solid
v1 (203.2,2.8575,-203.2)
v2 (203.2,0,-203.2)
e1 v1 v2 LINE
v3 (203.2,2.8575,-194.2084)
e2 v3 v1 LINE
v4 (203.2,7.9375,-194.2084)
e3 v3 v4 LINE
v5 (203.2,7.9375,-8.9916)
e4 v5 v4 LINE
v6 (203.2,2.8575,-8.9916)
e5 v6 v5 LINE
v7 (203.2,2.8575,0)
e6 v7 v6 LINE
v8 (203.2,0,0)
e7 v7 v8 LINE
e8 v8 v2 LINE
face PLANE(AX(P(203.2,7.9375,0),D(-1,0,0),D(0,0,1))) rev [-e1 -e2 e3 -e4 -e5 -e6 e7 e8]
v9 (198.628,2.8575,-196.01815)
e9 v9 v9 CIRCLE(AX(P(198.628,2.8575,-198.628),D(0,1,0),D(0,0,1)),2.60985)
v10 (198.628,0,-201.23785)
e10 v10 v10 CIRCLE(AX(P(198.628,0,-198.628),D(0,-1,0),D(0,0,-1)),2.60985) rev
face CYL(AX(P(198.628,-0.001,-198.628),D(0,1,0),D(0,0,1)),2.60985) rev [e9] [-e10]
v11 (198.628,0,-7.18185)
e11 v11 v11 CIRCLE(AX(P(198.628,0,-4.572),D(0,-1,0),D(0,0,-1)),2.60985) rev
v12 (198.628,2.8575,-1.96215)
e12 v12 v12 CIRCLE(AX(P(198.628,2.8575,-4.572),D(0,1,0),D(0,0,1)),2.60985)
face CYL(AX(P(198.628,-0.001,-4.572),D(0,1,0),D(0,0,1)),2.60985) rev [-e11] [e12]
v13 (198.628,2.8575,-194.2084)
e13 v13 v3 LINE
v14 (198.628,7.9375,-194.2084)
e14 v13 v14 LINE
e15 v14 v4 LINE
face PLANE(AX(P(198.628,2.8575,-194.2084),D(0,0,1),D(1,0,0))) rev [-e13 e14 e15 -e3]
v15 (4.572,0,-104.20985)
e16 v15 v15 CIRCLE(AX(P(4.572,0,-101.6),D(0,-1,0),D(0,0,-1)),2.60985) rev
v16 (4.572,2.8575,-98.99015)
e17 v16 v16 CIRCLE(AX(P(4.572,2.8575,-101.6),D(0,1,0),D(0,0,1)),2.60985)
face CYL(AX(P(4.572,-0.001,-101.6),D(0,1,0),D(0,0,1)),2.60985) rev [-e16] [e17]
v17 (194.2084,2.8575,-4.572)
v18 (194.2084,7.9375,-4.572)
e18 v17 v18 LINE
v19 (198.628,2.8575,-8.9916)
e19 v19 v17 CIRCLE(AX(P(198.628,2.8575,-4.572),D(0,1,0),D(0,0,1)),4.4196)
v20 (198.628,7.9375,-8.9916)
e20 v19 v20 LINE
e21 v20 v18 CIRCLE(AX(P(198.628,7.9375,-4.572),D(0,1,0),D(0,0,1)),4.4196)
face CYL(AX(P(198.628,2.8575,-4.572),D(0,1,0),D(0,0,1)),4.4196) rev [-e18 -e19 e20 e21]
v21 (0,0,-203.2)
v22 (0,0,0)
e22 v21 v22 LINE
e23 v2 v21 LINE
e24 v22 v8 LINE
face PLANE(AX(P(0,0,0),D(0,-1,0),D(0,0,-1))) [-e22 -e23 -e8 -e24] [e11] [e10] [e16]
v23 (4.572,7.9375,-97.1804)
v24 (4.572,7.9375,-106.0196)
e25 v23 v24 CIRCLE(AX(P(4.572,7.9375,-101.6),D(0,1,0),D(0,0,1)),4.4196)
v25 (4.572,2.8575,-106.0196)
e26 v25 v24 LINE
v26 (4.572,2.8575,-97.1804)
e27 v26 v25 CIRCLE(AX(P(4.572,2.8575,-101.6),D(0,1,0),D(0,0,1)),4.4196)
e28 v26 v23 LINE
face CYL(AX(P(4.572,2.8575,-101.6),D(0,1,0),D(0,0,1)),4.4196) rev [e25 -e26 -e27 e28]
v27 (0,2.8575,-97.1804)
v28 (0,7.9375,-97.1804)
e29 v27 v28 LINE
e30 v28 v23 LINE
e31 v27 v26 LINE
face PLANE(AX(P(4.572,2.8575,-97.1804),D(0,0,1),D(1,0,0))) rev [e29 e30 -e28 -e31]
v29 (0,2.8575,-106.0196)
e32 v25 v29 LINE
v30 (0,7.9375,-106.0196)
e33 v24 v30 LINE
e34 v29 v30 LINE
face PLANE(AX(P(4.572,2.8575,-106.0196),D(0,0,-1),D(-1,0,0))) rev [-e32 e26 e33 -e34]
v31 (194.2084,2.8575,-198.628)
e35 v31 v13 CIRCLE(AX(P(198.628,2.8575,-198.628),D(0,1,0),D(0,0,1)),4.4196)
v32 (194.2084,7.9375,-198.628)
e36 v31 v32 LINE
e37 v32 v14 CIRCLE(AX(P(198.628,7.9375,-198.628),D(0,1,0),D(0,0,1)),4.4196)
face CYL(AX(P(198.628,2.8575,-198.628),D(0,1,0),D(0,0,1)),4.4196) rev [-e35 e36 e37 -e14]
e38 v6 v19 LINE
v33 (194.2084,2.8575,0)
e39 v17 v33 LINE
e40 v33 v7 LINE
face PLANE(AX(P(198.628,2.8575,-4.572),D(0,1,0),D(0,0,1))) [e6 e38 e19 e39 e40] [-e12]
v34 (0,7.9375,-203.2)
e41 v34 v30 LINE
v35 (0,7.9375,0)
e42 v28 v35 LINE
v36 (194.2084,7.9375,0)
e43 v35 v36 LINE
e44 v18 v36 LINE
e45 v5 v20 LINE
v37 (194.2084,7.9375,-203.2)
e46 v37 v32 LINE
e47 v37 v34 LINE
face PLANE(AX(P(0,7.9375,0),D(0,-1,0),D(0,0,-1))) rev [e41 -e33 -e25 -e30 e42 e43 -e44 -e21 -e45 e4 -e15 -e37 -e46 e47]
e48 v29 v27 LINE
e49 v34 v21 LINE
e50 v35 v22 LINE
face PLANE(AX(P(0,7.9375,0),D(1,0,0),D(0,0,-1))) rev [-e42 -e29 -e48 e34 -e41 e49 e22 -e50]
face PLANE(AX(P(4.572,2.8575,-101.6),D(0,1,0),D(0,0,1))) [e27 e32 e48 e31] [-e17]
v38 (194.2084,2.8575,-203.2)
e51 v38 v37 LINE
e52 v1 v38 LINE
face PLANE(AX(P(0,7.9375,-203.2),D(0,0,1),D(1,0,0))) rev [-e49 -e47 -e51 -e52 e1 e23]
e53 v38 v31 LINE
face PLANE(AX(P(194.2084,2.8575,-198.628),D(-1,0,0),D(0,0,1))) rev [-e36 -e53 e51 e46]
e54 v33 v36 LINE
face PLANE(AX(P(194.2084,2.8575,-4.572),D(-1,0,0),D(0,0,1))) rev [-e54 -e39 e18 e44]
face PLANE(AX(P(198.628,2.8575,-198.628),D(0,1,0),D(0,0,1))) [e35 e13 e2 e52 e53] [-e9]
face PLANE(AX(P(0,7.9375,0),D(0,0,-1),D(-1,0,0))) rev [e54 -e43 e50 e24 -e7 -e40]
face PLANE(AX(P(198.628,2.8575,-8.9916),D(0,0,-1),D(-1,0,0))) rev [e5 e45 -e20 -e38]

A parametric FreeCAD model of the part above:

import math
import FreeCAD as App
import Part
import Sketcher
from FreeCAD import Vector
Q = App.Units.Quantity


def add_polygon(sketch, points):
    """Adds a closed chain of lines whose ends are joined by coincident constraints."""
    first, n = sketch.GeometryCount, len(points)
    for a, b in zip(points, points[1:] + points[:1]):
        sketch.addGeometry(Part.LineSegment(App.Vector(*a, 0), App.Vector(*b, 0)), False)
    for i in range(n):
        sketch.addConstraint(Sketcher.Constraint("Coincident", first + i, 2, first + (i + 1) % n, 1))

doc = App.newDocument("Part")
body = doc.addObject("PartDesign::Body", "Body")

sketch1 = doc.addObject("Sketcher::SketchObject", "Sketch")
body.addObject(sketch1)
sketch1.AttachmentSupport = (doc.XZ_Plane, [""])
sketch1.MapMode = "FlatFace"
add_polygon(sketch1, [(0, -203.2), (0, 0), (203.2, 0), (203.2, -203.2)])
sketch1.addConstraint(Sketcher.Constraint("Vertical", 0))
sketch1.addConstraint(Sketcher.Constraint("Horizontal", 1))
sketch1.addConstraint(Sketcher.Constraint("Vertical", 2))
sketch1.addConstraint(Sketcher.Constraint("Horizontal", 3))
sketch1.addConstraint(Sketcher.Constraint("Coincident", 0, 2, -1, 1))
sketch1.addConstraint(Sketcher.Constraint("Equal", 3, 0))
sketch1.addConstraint(Sketcher.Constraint("DistanceX", 1, 1, 1, 2, Q("8 in")))
pad1 = doc.addObject("PartDesign::Pad", "Pad")
body.addObject(pad1)
pad1.Profile = sketch1
pad1.Length = Q("0.3125 in")
pad1.Reversed = True

sketch2 = doc.addObject("Sketcher::SketchObject", "Sketch001")
body.addObject(sketch2)
sketch2.AttachmentSupport = (doc.XZ_Plane, [""])
sketch2.MapMode = "FlatFace"
sketch2.AttachmentOffset = App.Placement(Vector(0, 0, -0.3125 * 25.4), App.Rotation())
sketch2.addGeometry(Part.Circle(Vector(4.572, -101.6, 0), Vector(0, 0, 1), 2.60985), False)
sketch2.addConstraint(Sketcher.Constraint("DistanceY", 0, 3, -1, 1, Q("4 in")))
sketch2.addConstraint(Sketcher.Constraint("Diameter", 0, Q("0.2055 in")))
sketch2.addConstraint(Sketcher.Constraint("DistanceX", -1, 1, 0, 3, Q("0.18 in")))
pocket1 = doc.addObject("PartDesign::Pocket", "Pocket")
body.addObject(pocket1)
pocket1.Profile = sketch2
pocket1.Type = "UpToFirst"
pocket1.Reversed = True

sketch3 = doc.addObject("Sketcher::SketchObject", "Sketch002")
body.addObject(sketch3)
sketch3.AttachmentSupport = (doc.XZ_Plane, [""])
sketch3.MapMode = "FlatFace"
sketch3.AttachmentOffset = App.Placement(Vector(0, 0, -0.3125 * 25.4), App.Rotation())
sketch3.addGeometry(Part.Circle(Vector(198.628, -198.628, 0), Vector(0, 0, 1), 2.60985), False)
sketch3.addConstraint(Sketcher.Constraint("Diameter", 0, Q("0.2055 in")))
sketch3.addConstraint(Sketcher.Constraint("DistanceX", -1, 1, 0, 3, Q("7.82 in")))
sketch3.addConstraint(Sketcher.Constraint("DistanceY", 0, 3, -1, 1, Q("7.82 in")))
pocket2 = doc.addObject("PartDesign::Pocket", "Pocket001")
body.addObject(pocket2)
pocket2.Profile = sketch3
pocket2.Type = "UpToFirst"
pocket2.Reversed = True

sketch4 = doc.addObject("Sketcher::SketchObject", "Sketch003")
body.addObject(sketch4)
sketch4.AttachmentSupport = (doc.XZ_Plane, [""])
sketch4.MapMode = "FlatFace"
sketch4.AttachmentOffset = App.Placement(Vector(0, 0, -0.3125 * 25.4), App.Rotation())
sketch4.addGeometry(Part.Circle(Vector(198.628, -4.572, 0), Vector(0, 0, 1), 2.60985), False)
sketch4.addConstraint(Sketcher.Constraint("Diameter", 0, Q("0.2055 in")))
sketch4.addConstraint(Sketcher.Constraint("DistanceX", -1, 1, 0, 3, Q("7.82 in")))
sketch4.addConstraint(Sketcher.Constraint("DistanceY", 0, 3, -1, 1, Q("0.18 in")))
pocket3 = doc.addObject("PartDesign::Pocket", "Pocket002")
body.addObject(pocket3)
pocket3.Profile = sketch4
pocket3.Type = "UpToFirst"
pocket3.Reversed = True

sketch5 = doc.addObject("Sketcher::SketchObject", "Sketch004")
body.addObject(sketch5)
sketch5.AttachmentSupport = (doc.XZ_Plane, [""])
sketch5.MapMode = "FlatFace"
sketch5.AttachmentOffset = App.Placement(Vector(0, 0, -0.3125 * 25.4), App.Rotation())
sketch5.addGeometry(Part.LineSegment(Vector(4.572, -106.0196, 0), Vector(0, -106.0196, 0)), False)
sketch5.addGeometry(Part.LineSegment(Vector(0, -106.0196, 0), Vector(0, -97.1804, 0)), False)
sketch5.addGeometry(Part.LineSegment(Vector(0, -97.1804, 0), Vector(4.572, -97.1804, 0)), False)
sketch5.addGeometry(Part.ArcOfCircle(Part.Circle(Vector(4.572, -101.6, 0), Vector(0, 0, 1), 4.4196), math.radians(-90), math.radians(90)), False)
sketch5.addGeometry(Part.Circle(Vector(4.572, -101.6, 0), Vector(0, 0, 1), 2.60985), False)
sketch5.addGeometry(Part.LineSegment(Vector(194.2084, -203.2, 0), Vector(194.2084, -198.628, 0)), False)
sketch5.addGeometry(Part.ArcOfCircle(Part.Circle(Vector(198.628, -198.628, 0), Vector(0, 0, 1), 4.4196), math.radians(90), math.radians(180)), False)
sketch5.addGeometry(Part.LineSegment(Vector(198.628, -194.2084, 0), Vector(203.2, -194.2084, 0)), False)
sketch5.addGeometry(Part.LineSegment(Vector(203.2, -194.2084, 0), Vector(203.2, -203.2, 0)), False)
sketch5.addGeometry(Part.LineSegment(Vector(203.2, -203.2, 0), Vector(194.2084, -203.2, 0)), False)
sketch5.addGeometry(Part.Circle(Vector(198.628, -198.628, 0), Vector(0, 0, 1), 2.60985), False)
sketch5.addGeometry(Part.LineSegment(Vector(194.2084, -4.572, 0), Vector(194.2084, 0, 0)), False)
sketch5.addGeometry(Part.LineSegment(Vector(194.2084, 0, 0), Vector(203.2, 0, 0)), False)
sketch5.addGeometry(Part.LineSegment(Vector(203.2, 0, 0), Vector(203.2, -8.9916, 0)), False)
sketch5.addGeometry(Part.LineSegment(Vector(203.2, -8.9916, 0), Vector(198.628, -8.9916, 0)), False)
sketch5.addGeometry(Part.ArcOfCircle(Part.Circle(Vector(198.628, -4.572, 0), Vector(0, 0, 1), 4.4196), math.radians(180), math.radians(270)), False)
sketch5.addGeometry(Part.Circle(Vector(198.628, -4.572, 0), Vector(0, 0, 1), 2.60985), False)
sketch5.addConstraint(Sketcher.Constraint("Coincident", 0, 2, 1, 1))
sketch5.addConstraint(Sketcher.Constraint("Coincident", 1, 2, 2, 1))
sketch5.addConstraint(Sketcher.Constraint("Tangent", 2, 2, 3, 2))
sketch5.addConstraint(Sketcher.Constraint("Tangent", 3, 1, 0, 1))
sketch5.addConstraint(Sketcher.Constraint("Tangent", 5, 2, 6, 2))
sketch5.addConstraint(Sketcher.Constraint("Tangent", 6, 1, 7, 1))
sketch5.addConstraint(Sketcher.Constraint("Coincident", 7, 2, 8, 1))
sketch5.addConstraint(Sketcher.Constraint("Coincident", 8, 2, 9, 1))
sketch5.addConstraint(Sketcher.Constraint("Coincident", 9, 2, 5, 1))
sketch5.addConstraint(Sketcher.Constraint("Coincident", 11, 2, 12, 1))
sketch5.addConstraint(Sketcher.Constraint("Coincident", 12, 2, 13, 1))
sketch5.addConstraint(Sketcher.Constraint("Coincident", 13, 2, 14, 1))
sketch5.addConstraint(Sketcher.Constraint("Tangent", 14, 2, 15, 2))
sketch5.addConstraint(Sketcher.Constraint("Tangent", 15, 1, 11, 1))
sketch5.addConstraint(Sketcher.Constraint("Horizontal", 0))
sketch5.addConstraint(Sketcher.Constraint("Vertical", 1))
sketch5.addConstraint(Sketcher.Constraint("Horizontal", 2))
sketch5.addConstraint(Sketcher.Constraint("Vertical", 5))
sketch5.addConstraint(Sketcher.Constraint("Horizontal", 7))
sketch5.addConstraint(Sketcher.Constraint("Vertical", 8))
sketch5.addConstraint(Sketcher.Constraint("Horizontal", 9))
sketch5.addConstraint(Sketcher.Constraint("Vertical", 11))
sketch5.addConstraint(Sketcher.Constraint("Horizontal", 12))
sketch5.addConstraint(Sketcher.Constraint("Vertical", 13))
sketch5.addConstraint(Sketcher.Constraint("Horizontal", 14))
sketch5.addConstraint(Sketcher.Constraint("Coincident", 4, 3, 3, 3))
sketch5.addConstraint(Sketcher.Constraint("Coincident", 10, 3, 6, 3))
sketch5.addConstraint(Sketcher.Constraint("Coincident", 16, 3, 15, 3))
sketch5.addConstraint(Sketcher.Constraint("Equal", 3, 6))
sketch5.addConstraint(Sketcher.Constraint("Equal", 4, 10))
sketch5.addConstraint(Sketcher.Constraint("Equal", 6, 15))
sketch5.addConstraint(Sketcher.Constraint("Equal", 10, 16))
sketch5.addConstraint(Sketcher.Constraint("PointOnObject", 0, 2, -2))
sketch5.addConstraint(Sketcher.Constraint("PointOnObject", 11, 2, -1))
sketch5.addConstraint(Sketcher.Constraint("Vertical", 10, 3, 15, 3))
sketch5.addConstraint(Sketcher.Constraint("Vertical", 8, 2, 12, 2))
sketch5.addConstraint(Sketcher.Constraint("Equal", 2, 7))
sketch5.addConstraint(Sketcher.Constraint("Equal", 14, 5))
sketch5.addConstraint(Sketcher.Constraint("Equal", 5, 11))
sketch5.addConstraint(Sketcher.Constraint("DistanceY", 3, 3, -1, 1, Q("4 in")))
sketch5.addConstraint(Sketcher.Constraint("DistanceX", -1, 1, 7, 2, Q("8 in")))
sketch5.addConstraint(Sketcher.Constraint("DistanceY", 8, 2, -1, 1, Q("8 in")))
sketch5.addConstraint(Sketcher.Constraint("Radius", 3, Q("0.174 in")))
sketch5.addConstraint(Sketcher.Constraint("Diameter", 4, Q("0.2055 in")))
sketch5.addConstraint(Sketcher.Constraint("DistanceX", 0, 2, 0, 1, Q("0.18 in")))
pocket4 = doc.addObject("PartDesign::Pocket", "Pocket003")
body.addObject(pocket4)
pocket4.Profile = sketch5
pocket4.Length = Q("0.2 in")
pocket4.Reversed = True

doc.recompute()
